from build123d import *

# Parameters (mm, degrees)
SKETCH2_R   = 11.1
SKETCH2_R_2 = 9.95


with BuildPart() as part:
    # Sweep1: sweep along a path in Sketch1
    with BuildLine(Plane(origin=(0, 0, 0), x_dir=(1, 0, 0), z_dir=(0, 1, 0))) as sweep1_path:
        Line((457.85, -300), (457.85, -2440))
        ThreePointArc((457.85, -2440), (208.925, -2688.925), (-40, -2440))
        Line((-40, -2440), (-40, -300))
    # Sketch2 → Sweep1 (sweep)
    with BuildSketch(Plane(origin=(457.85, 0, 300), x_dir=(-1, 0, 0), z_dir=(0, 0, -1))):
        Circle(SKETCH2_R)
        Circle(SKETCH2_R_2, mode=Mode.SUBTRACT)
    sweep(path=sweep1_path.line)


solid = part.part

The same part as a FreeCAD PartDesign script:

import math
import FreeCAD as App
import Part
import Sketcher

doc = App.newDocument("Part")
body = doc.addObject("PartDesign::Body", "Body")

# Sketch on XY plane
sketch1 = doc.addObject("Sketcher::SketchObject", "Sketch")
body.addObject(sketch1)
sketch1.AttachmentSupport = (doc.XY_Plane, [""])
sketch1.MapMode = "FlatFace"
sketch1.AttachmentOffset = App.Placement(App.Vector(0, 0, 300), App.Rotation())
sketch1.addGeometry(Part.Circle(App.Vector(457.85, 0, 0), App.Vector(0, 0, 1), 11.1), False)
sketch1.addGeometry(Part.Circle(App.Vector(457.85, 0, 0), App.Vector(0, 0, 1), 9.95), False)
sketch1.addConstraint(Sketcher.Constraint("Coincident", 1, 3, 0, 3))
sketch1.addConstraint(Sketcher.Constraint("PointOnObject", 0, 3, -1))
sketch1.addConstraint(Sketcher.Constraint("Diameter", 0, 22.2))
sketch1.addConstraint(Sketcher.Constraint("Diameter", 1, 19.9))
sketch1.addConstraint(Sketcher.Constraint("DistanceX", -1, 1, 0, 3, 457.85))

# Sketch on XZ plane
sketch2 = doc.addObject("Sketcher::SketchObject", "Sketch001")
body.addObject(sketch2)
sketch2.AttachmentSupport = (doc.XZ_Plane, [""])
sketch2.MapMode = "FlatFace"
sketch2.addGeometry(Part.LineSegment(App.Vector(457.85, 300, 0), App.Vector(457.85, 2440, 0)), False)
sketch2.addGeometry(Part.ArcOfCircle(Part.Circle(App.Vector(208.925, 2440, 0), App.Vector(0, 0, 1), 248.925), math.radians(0), math.radians(180)), False)
sketch2.addGeometry(Part.LineSegment(App.Vector(-40, 2440, 0), App.Vector(-40, 300, 0)), False)
sketch2.addConstraint(Sketcher.Constraint("Tangent", 0, 2, 1, 1))
sketch2.addConstraint(Sketcher.Constraint("Tangent", 1, 2, 2, 1))
sketch2.addConstraint(Sketcher.Constraint("Vertical", 0))
sketch2.addConstraint(Sketcher.Constraint("Vertical", 2))
sketch2.addConstraint(Sketcher.Constraint("Horizontal", 0, 1, 2, 2))
sketch2.addConstraint(Sketcher.Constraint("DistanceY", 0, 1, 0, 2, 2140.0))
sketch2.addConstraint(Sketcher.Constraint("DistanceY", -1, 1, 1, 3, 2440.0))
sketch2.addConstraint(Sketcher.Constraint("DistanceX", 1, 2, -1, 1, 40.0))
sketch2.addConstraint(Sketcher.Constraint("Radius", 1, 248.925))
doc.recompute()

additivepipe = doc.addObject("PartDesign::AdditivePipe", "AdditivePipe")
body.addObject(additivepipe)
additivepipe.Profile = sketch1
additivepipe.Spine = (sketch2, ["Edge1", "Edge2", "Edge3"])

doc.recompute()
